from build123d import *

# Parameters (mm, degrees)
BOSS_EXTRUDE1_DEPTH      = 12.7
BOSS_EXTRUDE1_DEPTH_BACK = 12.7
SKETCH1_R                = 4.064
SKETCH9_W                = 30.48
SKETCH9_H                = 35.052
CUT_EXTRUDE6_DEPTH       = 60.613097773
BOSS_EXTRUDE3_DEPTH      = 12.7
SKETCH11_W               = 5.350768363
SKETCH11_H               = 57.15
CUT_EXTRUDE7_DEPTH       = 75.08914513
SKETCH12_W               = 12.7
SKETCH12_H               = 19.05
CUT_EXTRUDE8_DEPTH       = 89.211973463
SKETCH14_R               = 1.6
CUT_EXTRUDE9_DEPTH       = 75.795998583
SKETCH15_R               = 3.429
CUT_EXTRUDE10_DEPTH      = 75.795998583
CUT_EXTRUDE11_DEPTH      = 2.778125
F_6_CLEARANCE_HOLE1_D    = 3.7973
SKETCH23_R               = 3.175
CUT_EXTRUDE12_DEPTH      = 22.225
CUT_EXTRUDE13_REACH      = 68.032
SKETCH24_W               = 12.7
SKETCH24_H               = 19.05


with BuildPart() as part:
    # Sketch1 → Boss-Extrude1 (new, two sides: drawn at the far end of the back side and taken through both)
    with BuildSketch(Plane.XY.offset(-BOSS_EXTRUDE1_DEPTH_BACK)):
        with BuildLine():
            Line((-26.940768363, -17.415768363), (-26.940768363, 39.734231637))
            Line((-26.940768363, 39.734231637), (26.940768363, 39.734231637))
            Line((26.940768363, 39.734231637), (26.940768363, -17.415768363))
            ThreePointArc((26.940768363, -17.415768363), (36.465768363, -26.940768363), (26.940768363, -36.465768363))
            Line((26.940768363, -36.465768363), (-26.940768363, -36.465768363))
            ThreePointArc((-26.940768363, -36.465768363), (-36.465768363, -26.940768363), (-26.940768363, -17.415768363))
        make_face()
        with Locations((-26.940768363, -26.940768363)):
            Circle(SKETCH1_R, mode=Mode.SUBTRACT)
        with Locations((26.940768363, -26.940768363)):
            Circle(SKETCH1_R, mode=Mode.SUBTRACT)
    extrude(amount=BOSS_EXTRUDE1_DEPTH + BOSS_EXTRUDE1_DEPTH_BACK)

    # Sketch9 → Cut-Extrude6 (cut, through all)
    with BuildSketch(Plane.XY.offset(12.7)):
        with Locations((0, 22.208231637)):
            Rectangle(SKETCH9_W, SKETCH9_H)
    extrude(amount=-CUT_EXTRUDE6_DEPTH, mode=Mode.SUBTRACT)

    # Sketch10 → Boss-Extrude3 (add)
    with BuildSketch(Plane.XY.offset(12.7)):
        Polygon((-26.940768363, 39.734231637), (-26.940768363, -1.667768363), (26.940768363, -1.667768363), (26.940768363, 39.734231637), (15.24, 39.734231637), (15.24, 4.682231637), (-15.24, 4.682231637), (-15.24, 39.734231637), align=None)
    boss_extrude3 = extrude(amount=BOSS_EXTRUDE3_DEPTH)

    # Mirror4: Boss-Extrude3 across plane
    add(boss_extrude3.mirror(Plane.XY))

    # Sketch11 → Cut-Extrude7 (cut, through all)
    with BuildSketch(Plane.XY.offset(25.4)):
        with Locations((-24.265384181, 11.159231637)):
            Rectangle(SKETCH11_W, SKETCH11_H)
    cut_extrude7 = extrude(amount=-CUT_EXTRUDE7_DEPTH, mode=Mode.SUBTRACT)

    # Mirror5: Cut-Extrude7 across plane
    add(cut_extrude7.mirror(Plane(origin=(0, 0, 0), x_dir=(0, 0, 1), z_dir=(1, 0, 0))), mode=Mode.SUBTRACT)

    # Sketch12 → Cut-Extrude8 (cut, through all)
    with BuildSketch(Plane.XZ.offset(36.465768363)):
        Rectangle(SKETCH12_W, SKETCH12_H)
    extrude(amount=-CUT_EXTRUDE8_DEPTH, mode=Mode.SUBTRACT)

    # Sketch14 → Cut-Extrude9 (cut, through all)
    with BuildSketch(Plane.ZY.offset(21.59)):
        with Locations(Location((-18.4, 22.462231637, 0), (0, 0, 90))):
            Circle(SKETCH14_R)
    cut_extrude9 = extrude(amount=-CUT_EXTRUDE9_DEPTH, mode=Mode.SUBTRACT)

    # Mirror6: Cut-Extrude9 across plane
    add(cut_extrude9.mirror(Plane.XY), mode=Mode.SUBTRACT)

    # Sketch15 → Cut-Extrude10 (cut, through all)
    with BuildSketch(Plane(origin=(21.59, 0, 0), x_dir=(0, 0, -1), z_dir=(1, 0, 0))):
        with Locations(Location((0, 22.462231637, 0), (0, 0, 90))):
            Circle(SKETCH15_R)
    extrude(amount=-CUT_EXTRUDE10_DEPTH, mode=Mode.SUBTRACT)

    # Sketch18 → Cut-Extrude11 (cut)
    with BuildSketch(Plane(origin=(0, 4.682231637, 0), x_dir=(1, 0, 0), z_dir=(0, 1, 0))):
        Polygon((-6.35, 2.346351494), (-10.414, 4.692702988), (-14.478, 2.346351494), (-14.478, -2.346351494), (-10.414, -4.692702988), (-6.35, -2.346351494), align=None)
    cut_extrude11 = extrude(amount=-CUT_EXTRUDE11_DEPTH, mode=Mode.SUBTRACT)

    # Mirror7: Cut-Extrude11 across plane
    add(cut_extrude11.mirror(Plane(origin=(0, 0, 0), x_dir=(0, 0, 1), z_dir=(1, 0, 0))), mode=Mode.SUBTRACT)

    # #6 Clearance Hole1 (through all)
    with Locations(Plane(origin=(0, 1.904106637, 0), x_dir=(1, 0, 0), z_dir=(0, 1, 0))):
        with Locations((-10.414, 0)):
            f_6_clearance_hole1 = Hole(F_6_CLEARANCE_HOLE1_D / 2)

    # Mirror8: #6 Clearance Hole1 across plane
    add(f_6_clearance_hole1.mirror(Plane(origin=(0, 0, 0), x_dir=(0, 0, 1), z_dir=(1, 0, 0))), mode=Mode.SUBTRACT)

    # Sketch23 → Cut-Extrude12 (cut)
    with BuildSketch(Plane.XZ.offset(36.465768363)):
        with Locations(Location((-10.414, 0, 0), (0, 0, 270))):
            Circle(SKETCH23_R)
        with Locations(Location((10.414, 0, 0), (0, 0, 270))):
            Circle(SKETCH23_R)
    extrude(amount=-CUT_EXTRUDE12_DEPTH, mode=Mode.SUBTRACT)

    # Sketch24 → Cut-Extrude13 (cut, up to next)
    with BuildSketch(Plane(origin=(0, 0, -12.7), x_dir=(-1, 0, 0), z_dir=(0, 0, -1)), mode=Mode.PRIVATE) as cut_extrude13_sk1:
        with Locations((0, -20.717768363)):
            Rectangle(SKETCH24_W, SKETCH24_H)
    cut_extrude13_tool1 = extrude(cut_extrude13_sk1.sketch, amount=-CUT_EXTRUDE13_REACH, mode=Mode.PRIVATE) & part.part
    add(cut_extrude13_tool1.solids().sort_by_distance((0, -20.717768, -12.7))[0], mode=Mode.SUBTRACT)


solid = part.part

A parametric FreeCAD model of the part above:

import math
import FreeCAD as App
import Part
import Sketcher

V = App.Vector
Q = App.Units.Quantity


def add_polygon(sketch, points):
    """Adds a closed chain of lines whose ends are joined by coincident constraints."""
    first, n = sketch.GeometryCount, len(points)
    for a, b in zip(points, points[1:] + points[:1]):
        sketch.addGeometry(Part.LineSegment(App.Vector(*a, 0), App.Vector(*b, 0)), False)
    for i in range(n):
        sketch.addConstraint(Sketcher.Constraint("Coincident", first + i, 2, first + (i + 1) % n, 1))

doc = App.newDocument("Part")
body = doc.addObject("PartDesign::Body", "Body")

sketch1 = doc.addObject("Sketcher::SketchObject", "Sketch")
body.addObject(sketch1)
sketch1.AttachmentSupport = (doc.XY_Plane, [""])
sketch1.MapMode = "FlatFace"
sketch1.addGeometry([
    Part.LineSegment(V(-26.9, 39.7, 0), V(-26.9, -17.4, 0)),
    Part.ArcOfCircle(Part.Circle(V(-26.9, -26.9, 0), V(0, 0, 1), 9.5), math.radians(90), math.radians(270)),
    Part.LineSegment(V(-26.9, -36.5, 0), V(26.9, -36.5, 0)),
    Part.ArcOfCircle(Part.Circle(V(26.9, -26.9, 0), V(0, 0, 1), 9.5), math.radians(-90), math.radians(90)),
    Part.LineSegment(V(26.9, -17.4, 0), V(26.9, 39.7, 0)),
    Part.LineSegment(V(26.9, 39.7, 0), V(-26.9, 39.7, 0)),
    Part.Circle(V(26.9, -26.9, 0), V(0, 0, 1), 4.1),
    Part.Circle(V(-26.9, -26.9, 0), V(0, 0, 1), 4.1),
], False)
sketch1.addConstraint([
    Sketcher.Constraint("Coincident", 0, 2, 1, 1),
    Sketcher.Constraint("Tangent", 1, 2, 2, 1),
    Sketcher.Constraint("Tangent", 2, 2, 3, 1),
    Sketcher.Constraint("Coincident", 3, 2, 4, 1),
    Sketcher.Constraint("Coincident", 4, 2, 5, 1),
    Sketcher.Constraint("Coincident", 5, 2, 0, 1),
    Sketcher.Constraint("Vertical", 0),
    Sketcher.Constraint("Horizontal", 2),
    Sketcher.Constraint("Vertical", 4),
    Sketcher.Constraint("Horizontal", 5),
    Sketcher.Constraint("Coincident", 6, 3, 3, 3),
    Sketcher.Constraint("Coincident", 7, 3, 1, 3),
    Sketcher.Constraint("Equal", 1, 3),
    Sketcher.Constraint("Equal", 6, 7),
    Sketcher.Constraint("Vertical", 7, 3, 0, 2),
    Sketcher.Constraint("Vertical", 2, 2, 3, 2),
    Sketcher.Constraint("Diameter", 6, Q("0.32 in")),
    Sketcher.Constraint("Radius", 1, Q("0.375 in")),
    Sketcher.Constraint("DistanceY", 2, 2, 4, 2, Q("3 in")),
    Sketcher.Constraint("DistanceX", 2, 1, 2, 2, 53.881537),
    Sketcher.Constraint("DistanceX", 1, 3, -1, 1, 26.940768),
    Sketcher.Constraint("DistanceY", 1, 3, -1, 1, 26.940768),
])
pad1 = doc.addObject("PartDesign::Pad", "Pad")
body.addObject(pad1)
pad1.Profile = sketch1
pad1.Type = "TwoLengths"
pad1.Length = Q("0.5 in")
pad1.Length2 = Q("0.5 in")

sketch2 = doc.addObject("Sketcher::SketchObject", "Sketch001")
body.addObject(sketch2)
sketch2.AttachmentSupport = (doc.XY_Plane, [""])
sketch2.MapMode = "FlatFace"
sketch2.AttachmentOffset = App.Placement(V(0, 0, 0.5 * 25.4), App.Rotation())
add_polygon(sketch2, [(-15, 40), (-15, 5), (15, 5), (15, 40)])
sketch2.addConstraint([
    Sketcher.Constraint("Vertical", 0),
    Sketcher.Constraint("Horizontal", 1),
    Sketcher.Constraint("Vertical", 2),
    Sketcher.Constraint("Horizontal", 3),
    Sketcher.Constraint("DistanceX", 1, 1, 1, 2, Q("1.2 in")),
    Sketcher.Constraint("DistanceY", 0, 2, 0, 1, Q("1.38 in")),
    Sketcher.Constraint("DistanceX", 0, 2, -1, 1, Q("0.6 in")),
    Sketcher.Constraint("DistanceY", -1, 1, 0, 2, 4.682232),
])
pocket1 = doc.addObject("PartDesign::Pocket", "Pocket")
body.addObject(pocket1)
pocket1.Profile = sketch2
pocket1.Type = "ThroughAll"

sketch3 = doc.addObject("Sketcher::SketchObject", "Sketch002")
body.addObject(sketch3)
sketch3.AttachmentSupport = (doc.XY_Plane, [""])
sketch3.MapMode = "FlatFace"
sketch3.AttachmentOffset = App.Placement(V(0, 0, 0.5 * 25.4), App.Rotation())
add_polygon(sketch3, [(-27, 40), (-27, -2), (27, -2), (27, 40), (15, 40), (15, 5), (-15, 5), (-15, 40)])
sketch3.addConstraint([
    Sketcher.Constraint("Vertical", 0),
    Sketcher.Constraint("Horizontal", 1),
    Sketcher.Constraint("Vertical", 2),
    Sketcher.Constraint("Horizontal", 3),
    Sketcher.Constraint("Vertical", 4),
    Sketcher.Constraint("Horizontal", 5),
    Sketcher.Constraint("Vertical", 6),
    Sketcher.Constraint("Horizontal", 7),
    Sketcher.Constraint("Symmetric", 3, 2, 6, 2, -2),
    Sketcher.Constraint("Equal", 3, 7),
    Sketcher.Constraint("DistanceX", 5, 2, 5, 1, Q("1.2 in")),
    Sketcher.Constraint("DistanceY", 0, 2, 0, 1, Q("1.63 in")),
    Sketcher.Constraint("DistanceY", 4, 2, 4, 1, Q("1.38 in")),
    Sketcher.Constraint("DistanceX", 3, 2, 3, 1, 11.700768),
    Sketcher.Constraint("DistanceY", 0, 2, -1, 1, 1.667768),
])
pad2 = doc.addObject("PartDesign::Pad", "Pad001")
body.addObject(pad2)
pad2.Profile = sketch3
pad2.Length = Q("0.5 in")
doc.recompute()

mirrored = doc.addObject("PartDesign::Mirrored", "Mirrored")
body.addObject(mirrored)
mirrored.Originals = [pad2]
mirrored.MirrorPlane = (doc.XY_Plane, [""])
body.Tip = mirrored

sketch4 = doc.addObject("Sketcher::SketchObject", "Sketch003")
body.addObject(sketch4)
sketch4.AttachmentSupport = (doc.XY_Plane, [""])
sketch4.MapMode = "FlatFace"
sketch4.AttachmentOffset = App.Placement(V(0, 0, 1 * 25.4), App.Rotation())
add_polygon(sketch4, [(-27, 40), (-27, -17), (-22, -17), (-22, 40)])
sketch4.addConstraint([
    Sketcher.Constraint("Vertical", 0),
    Sketcher.Constraint("Horizontal", 1),
    Sketcher.Constraint("Vertical", 2),
    Sketcher.Constraint("Horizontal", 3),
    Sketcher.Constraint("DistanceY", 0, 2, 0, 1, Q("2.25 in")),
    Sketcher.Constraint("DistanceX", 1, 2, -1, 1, Q("0.85 in")),
    Sketcher.Constraint("DistanceX", 1, 1, 1, 2, 5.350768),
    Sketcher.Constraint("DistanceY", 0, 2, -1, 1, 17.415768),
])
pocket2 = doc.addObject("PartDesign::Pocket", "Pocket001")
body.addObject(pocket2)
pocket2.Profile = sketch4
pocket2.Type = "ThroughAll"
doc.recompute()

mirrored2 = doc.addObject("PartDesign::Mirrored", "Mirrored001")
body.addObject(mirrored2)
mirrored2.Originals = [pocket2]
mirrored2.MirrorPlane = (doc.YZ_Plane, [""])
body.Tip = mirrored2

sketch5 = doc.addObject("Sketcher::SketchObject", "Sketch004")
body.addObject(sketch5)
sketch5.AttachmentSupport = (doc.XZ_Plane, [""])
sketch5.MapMode = "FlatFace"
sketch5.AttachmentOffset = App.Placement(V(0, 0, 36.465768), App.Rotation())
add_polygon(sketch5, [(-6, 10), (-6, -10), (6, -10), (6, 10)])
sketch5.addConstraint([
    Sketcher.Constraint("Vertical", 0),
    Sketcher.Constraint("Horizontal", 1),
    Sketcher.Constraint("Vertical", 2),
    Sketcher.Constraint("Horizontal", 3),
    Sketcher.Constraint("Symmetric", 0, 2, 2, 2, -1, 1),
    Sketcher.Constraint("DistanceX", 1, 1, 1, 2, Q("0.5 in")),
    Sketcher.Constraint("DistanceY", 0, 2, 0, 1, Q("0.75 in")),
])
pocket3 = doc.addObject("PartDesign::Pocket", "Pocket002")
body.addObject(pocket3)
pocket3.Profile = sketch5
pocket3.Type = "ThroughAll"

sketch6 = doc.addObject("Sketcher::SketchObject", "Sketch005")
body.addObject(sketch6)
sketch6.AttachmentSupport = (doc.YZ_Plane, [""])
sketch6.MapMode = "FlatFace"
sketch6.AttachmentOffset = App.Placement(V(0, 0, -0.85 * 25.4), App.Rotation())
sketch6.addGeometry(Part.Circle(V(22.5, -18.4, 0), V(0, 0, 1), 1.6), False)
sketch6.addConstraint([
    Sketcher.Constraint("Diameter", 0, 3.2),
    Sketcher.Constraint("DistanceY", 0, 3, -1, 1, 18.4),
    Sketcher.Constraint("DistanceX", -1, 1, 0, 3, 22.462232),
])
pocket4 = doc.addObject("PartDesign::Pocket", "Pocket003")
body.addObject(pocket4)
pocket4.Profile = sketch6
pocket4.Type = "ThroughAll"
pocket4.Reversed = True
doc.recompute()

mirrored3 = doc.addObject("PartDesign::Mirrored", "Mirrored002")
body.addObject(mirrored3)
mirrored3.Originals = [pocket4]
mirrored3.MirrorPlane = (doc.XY_Plane, [""])
body.Tip = mirrored3

sketch7 = doc.addObject("Sketcher::SketchObject", "Sketch006")
body.addObject(sketch7)
sketch7.AttachmentSupport = (doc.YZ_Plane, [""])
sketch7.MapMode = "FlatFace"
sketch7.AttachmentOffset = App.Placement(V(0, 0, 0.85 * 25.4), App.Rotation())
sketch7.addGeometry(Part.Circle(V(22.5, 0, 0), V(0, 0, 1), 3.4), False)
sketch7.addConstraint([
    Sketcher.Constraint("PointOnObject", 0, 3, -1),
    Sketcher.Constraint("Diameter", 0, Q("0.27 in")),
    Sketcher.Constraint("DistanceX", -1, 1, 0, 3, 22.462232),
])
pocket5 = doc.addObject("PartDesign::Pocket", "Pocket004")
body.addObject(pocket5)
pocket5.Profile = sketch7
pocket5.Type = "ThroughAll"

sketch8 = doc.addObject("Sketcher::SketchObject", "Sketch007")
body.addObject(sketch8)
sketch8.AttachmentSupport = (doc.XZ_Plane, [""])
sketch8.MapMode = "FlatFace"
sketch8.AttachmentOffset = App.Placement(V(0, 0, -4.682232), App.Rotation())
add_polygon(sketch8, [(-6.3, -2.3), (-10.4, -4.7), (-14.5, -2.3), (-14.5, 2.3), (-10.4, 4.7), (-6.3, 2.3)])
sketch8.addConstraint([
    Sketcher.Constraint("Vertical", 2),
    Sketcher.Constraint("Vertical", 5),
    Sketcher.Constraint("Symmetric", 0, 2, 3, 2, -1),
    Sketcher.Constraint("Parallel", 0, 3),
    Sketcher.Constraint("Parallel", 1, 4),
    Sketcher.Constraint("Horizontal", 2, 2, 4, 2),
    Sketcher.Constraint("Horizontal", 1, 2, 5, 2),
    Sketcher.Constraint("Angle", 0, Q("-150 deg")),
    Sketcher.Constraint("DistanceX", 0, 2, -1, 1, Q("0.41 in")),
    Sketcher.Constraint("DistanceX", 1, 2, -1, 1, Q("0.57 in")),
    Sketcher.Constraint("DistanceY", 2, 1, 2, 2, 4.692703),
])
pocket6 = doc.addObject("PartDesign::Pocket", "Pocket005")
body.addObject(pocket6)
pocket6.Profile = sketch8
pocket6.Length = Q("0.109375 in")
pocket6.Reversed = True
doc.recompute()

mirrored4 = doc.addObject("PartDesign::Mirrored", "Mirrored003")
body.addObject(mirrored4)
mirrored4.Originals = [pocket6]
mirrored4.MirrorPlane = (doc.YZ_Plane, [""])
body.Tip = mirrored4

sketch9 = doc.addObject("Sketcher::SketchObject", "Sketch008")
body.addObject(sketch9)
sketch9.AttachmentSupport = (doc.XZ_Plane, [""])
sketch9.MapMode = "FlatFace"
sketch9.AttachmentOffset = App.Placement(V(0, 0, -1.904107), App.Rotation())
sketch9.addGeometry(Part.Circle(V(-10.4, 0, 0), V(0, 0, 1), 1.9), False)
sketch9.addConstraint([
    Sketcher.Constraint("PointOnObject", 0, 3, -1),
    Sketcher.Constraint("Diameter", 0, Q("0.1495 in")),
    Sketcher.Constraint("DistanceX", 0, 3, -1, 1, Q("0.41 in")),
])
doc.recompute()
hole = doc.addObject("PartDesign::Hole", "Hole")
body.addObject(hole)
hole.Profile = sketch9
hole.ThreadType = "None"
hole.Diameter = Q("0.1495 in")
hole.DepthType = "ThroughAll"
hole.Reversed = True
doc.recompute()

mirrored5 = doc.addObject("PartDesign::Mirrored", "Mirrored004")
body.addObject(mirrored5)
mirrored5.Originals = [hole]
mirrored5.MirrorPlane = (doc.YZ_Plane, [""])
body.Tip = mirrored5

sketch10 = doc.addObject("Sketcher::SketchObject", "Sketch009")
body.addObject(sketch10)
sketch10.AttachmentSupport = (doc.XZ_Plane, [""])
sketch10.MapMode = "FlatFace"
sketch10.AttachmentOffset = App.Placement(V(0, 0, 36.465768), App.Rotation())
sketch10.addGeometry([
    Part.Circle(V(-10.4, 0, 0), V(0, 0, 1), 3.2),
    Part.Circle(V(10.4, 0, 0), V(0, 0, 1), 3.2),
], False)
sketch10.addConstraint([
    Sketcher.Constraint("Equal", 0, 1),
    Sketcher.Constraint("Symmetric", 0, 3, 1, 3, -1, 1),
    Sketcher.Constraint("PointOnObject", 0, 3, -1),
    Sketcher.Constraint("Diameter", 0, Q("0.25 in")),
    Sketcher.Constraint("DistanceX", 0, 3, -1, 1, Q("0.41 in")),
])
pocket7 = doc.addObject("PartDesign::Pocket", "Pocket006")
body.addObject(pocket7)
pocket7.Profile = sketch10
pocket7.Length = Q("0.875 in")

sketch11 = doc.addObject("Sketcher::SketchObject", "Sketch010")
body.addObject(sketch11)
sketch11.AttachmentSupport = (doc.XY_Plane, [""])
sketch11.MapMode = "FlatFace"
sketch11.AttachmentOffset = App.Placement(V(0, 0, -0.5 * 25.4), App.Rotation())
add_polygon(sketch11, [(6, -11), (6, -30), (-6, -30), (-6, -11)])
sketch11.addConstraint([
    Sketcher.Constraint("Vertical", 0),
    Sketcher.Constraint("Horizontal", 1),
    Sketcher.Constraint("Vertical", 2),
    Sketcher.Constraint("Horizontal", 3),
    Sketcher.Constraint("DistanceX", 1, 2, 1, 1, Q("0.5 in")),
    Sketcher.Constraint("DistanceY", 0, 2, 0, 1, Q("0.75 in")),
    Sketcher.Constraint("DistanceX", -1, 1, 0, 2, Q("0.25 in")),
    Sketcher.Constraint("DistanceY", 0, 2, -1, 1, 30.242768),
])
pocket8 = doc.addObject("PartDesign::Pocket", "Pocket007")
body.addObject(pocket8)
pocket8.Profile = sketch11
pocket8.Type = "UpToFirst"
pocket8.Reversed = True

doc.recompute()
